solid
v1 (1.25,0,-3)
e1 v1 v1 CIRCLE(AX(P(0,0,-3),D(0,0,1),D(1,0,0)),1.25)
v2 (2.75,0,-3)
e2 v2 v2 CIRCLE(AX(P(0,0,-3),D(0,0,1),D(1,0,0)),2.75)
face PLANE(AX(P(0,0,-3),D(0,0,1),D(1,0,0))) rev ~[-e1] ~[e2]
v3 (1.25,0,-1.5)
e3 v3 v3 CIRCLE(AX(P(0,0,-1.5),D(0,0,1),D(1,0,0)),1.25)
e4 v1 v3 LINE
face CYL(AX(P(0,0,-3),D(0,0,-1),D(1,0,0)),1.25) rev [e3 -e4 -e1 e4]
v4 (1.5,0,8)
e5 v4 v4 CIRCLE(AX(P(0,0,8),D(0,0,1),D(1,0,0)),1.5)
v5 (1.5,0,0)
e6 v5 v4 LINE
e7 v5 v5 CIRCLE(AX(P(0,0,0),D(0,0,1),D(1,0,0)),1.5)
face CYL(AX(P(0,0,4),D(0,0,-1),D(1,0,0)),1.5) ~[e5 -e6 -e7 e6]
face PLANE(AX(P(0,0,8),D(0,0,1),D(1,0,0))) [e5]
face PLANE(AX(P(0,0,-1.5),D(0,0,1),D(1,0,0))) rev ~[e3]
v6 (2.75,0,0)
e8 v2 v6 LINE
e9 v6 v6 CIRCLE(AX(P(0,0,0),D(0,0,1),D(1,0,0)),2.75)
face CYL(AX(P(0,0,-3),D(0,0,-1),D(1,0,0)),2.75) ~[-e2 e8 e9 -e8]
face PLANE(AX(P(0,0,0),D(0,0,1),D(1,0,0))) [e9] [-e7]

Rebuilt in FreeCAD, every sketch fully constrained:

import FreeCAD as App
import Part
import Sketcher
from FreeCAD import Vector

doc = App.newDocument("Part")
body = doc.addObject("PartDesign::Body", "Body")

# Sketch on XY plane
sketch1 = doc.addObject("Sketcher::SketchObject", "Sketch")
body.addObject(sketch1)
sketch1.AttachmentSupport = (doc.XY_Plane, [""])
sketch1.MapMode = "FlatFace"
sketch1.AttachmentOffset = App.Placement(Vector(0, 0, -3), App.Rotation())
sketch1.addGeometry(Part.Circle(Vector(0, 0, 0), Vector(0, 0, 1), 2.8), False)
sketch1.addConstraint([
    Sketcher.Constraint("Coincident", 0, 3, -1, 1),
    Sketcher.Constraint("Diameter", 0, 5.5),
])
pad1 = doc.addObject("PartDesign::Pad", "Pad")
body.addObject(pad1)
pad1.Profile = sketch1
pad1.Length = 3

# Sketch on XY plane
sketch2 = doc.addObject("Sketcher::SketchObject", "Sketch001")
body.addObject(sketch2)
sketch2.AttachmentSupport = (doc.XY_Plane, [""])
sketch2.MapMode = "FlatFace"
sketch2.addGeometry(Part.Circle(Vector(0, 0, 0), Vector(0, 0, 1), 1.5), False)
sketch2.addConstraint([
    Sketcher.Constraint("Coincident", 0, 3, -1, 1),
    Sketcher.Constraint("Diameter", 0, 3.0),
])
pad2 = doc.addObject("PartDesign::Pad", "Pad001")
body.addObject(pad2)
pad2.Profile = sketch2
pad2.Length = 4

# Sketch on XY plane
sketch3 = doc.addObject("Sketcher::SketchObject", "Sketch002")
body.addObject(sketch3)
sketch3.AttachmentSupport = (doc.XY_Plane, [""])
sketch3.MapMode = "FlatFace"
sketch3.AttachmentOffset = App.Placement(Vector(0, 0, 4), App.Rotation())
sketch3.addGeometry(Part.Circle(Vector(0, 0, 0), Vector(0, 0, 1), 1.5), False)
sketch3.addConstraint([
    Sketcher.Constraint("Coincident", 0, 3, -1, 1),
    Sketcher.Constraint("Diameter", 0, 3.0),
])
pad3 = doc.addObject("PartDesign::Pad", "Pad002")
body.addObject(pad3)
pad3.Profile = sketch3
pad3.Length = 4

# Sketch on XY plane
sketch4 = doc.addObject("Sketcher::SketchObject", "Sketch003")
body.addObject(sketch4)
sketch4.AttachmentSupport = (doc.XY_Plane, [""])
sketch4.MapMode = "FlatFace"
sketch4.AttachmentOffset = App.Placement(Vector(0, 0, -3), App.Rotation())
sketch4.addGeometry(Part.Circle(Vector(0, 0, 0), Vector(0, 0, 1), 1.2), False)
sketch4.addConstraint([
    Sketcher.Constraint("Coincident", 0, 3, -1, 1),
    Sketcher.Constraint("Diameter", 0, 2.5),
])
pocket1 = doc.addObject("PartDesign::Pocket", "Pocket")
body.addObject(pocket1)
pocket1.Profile = sketch4
pocket1.Length = 1.5
pocket1.Reversed = True

doc.recompute()
